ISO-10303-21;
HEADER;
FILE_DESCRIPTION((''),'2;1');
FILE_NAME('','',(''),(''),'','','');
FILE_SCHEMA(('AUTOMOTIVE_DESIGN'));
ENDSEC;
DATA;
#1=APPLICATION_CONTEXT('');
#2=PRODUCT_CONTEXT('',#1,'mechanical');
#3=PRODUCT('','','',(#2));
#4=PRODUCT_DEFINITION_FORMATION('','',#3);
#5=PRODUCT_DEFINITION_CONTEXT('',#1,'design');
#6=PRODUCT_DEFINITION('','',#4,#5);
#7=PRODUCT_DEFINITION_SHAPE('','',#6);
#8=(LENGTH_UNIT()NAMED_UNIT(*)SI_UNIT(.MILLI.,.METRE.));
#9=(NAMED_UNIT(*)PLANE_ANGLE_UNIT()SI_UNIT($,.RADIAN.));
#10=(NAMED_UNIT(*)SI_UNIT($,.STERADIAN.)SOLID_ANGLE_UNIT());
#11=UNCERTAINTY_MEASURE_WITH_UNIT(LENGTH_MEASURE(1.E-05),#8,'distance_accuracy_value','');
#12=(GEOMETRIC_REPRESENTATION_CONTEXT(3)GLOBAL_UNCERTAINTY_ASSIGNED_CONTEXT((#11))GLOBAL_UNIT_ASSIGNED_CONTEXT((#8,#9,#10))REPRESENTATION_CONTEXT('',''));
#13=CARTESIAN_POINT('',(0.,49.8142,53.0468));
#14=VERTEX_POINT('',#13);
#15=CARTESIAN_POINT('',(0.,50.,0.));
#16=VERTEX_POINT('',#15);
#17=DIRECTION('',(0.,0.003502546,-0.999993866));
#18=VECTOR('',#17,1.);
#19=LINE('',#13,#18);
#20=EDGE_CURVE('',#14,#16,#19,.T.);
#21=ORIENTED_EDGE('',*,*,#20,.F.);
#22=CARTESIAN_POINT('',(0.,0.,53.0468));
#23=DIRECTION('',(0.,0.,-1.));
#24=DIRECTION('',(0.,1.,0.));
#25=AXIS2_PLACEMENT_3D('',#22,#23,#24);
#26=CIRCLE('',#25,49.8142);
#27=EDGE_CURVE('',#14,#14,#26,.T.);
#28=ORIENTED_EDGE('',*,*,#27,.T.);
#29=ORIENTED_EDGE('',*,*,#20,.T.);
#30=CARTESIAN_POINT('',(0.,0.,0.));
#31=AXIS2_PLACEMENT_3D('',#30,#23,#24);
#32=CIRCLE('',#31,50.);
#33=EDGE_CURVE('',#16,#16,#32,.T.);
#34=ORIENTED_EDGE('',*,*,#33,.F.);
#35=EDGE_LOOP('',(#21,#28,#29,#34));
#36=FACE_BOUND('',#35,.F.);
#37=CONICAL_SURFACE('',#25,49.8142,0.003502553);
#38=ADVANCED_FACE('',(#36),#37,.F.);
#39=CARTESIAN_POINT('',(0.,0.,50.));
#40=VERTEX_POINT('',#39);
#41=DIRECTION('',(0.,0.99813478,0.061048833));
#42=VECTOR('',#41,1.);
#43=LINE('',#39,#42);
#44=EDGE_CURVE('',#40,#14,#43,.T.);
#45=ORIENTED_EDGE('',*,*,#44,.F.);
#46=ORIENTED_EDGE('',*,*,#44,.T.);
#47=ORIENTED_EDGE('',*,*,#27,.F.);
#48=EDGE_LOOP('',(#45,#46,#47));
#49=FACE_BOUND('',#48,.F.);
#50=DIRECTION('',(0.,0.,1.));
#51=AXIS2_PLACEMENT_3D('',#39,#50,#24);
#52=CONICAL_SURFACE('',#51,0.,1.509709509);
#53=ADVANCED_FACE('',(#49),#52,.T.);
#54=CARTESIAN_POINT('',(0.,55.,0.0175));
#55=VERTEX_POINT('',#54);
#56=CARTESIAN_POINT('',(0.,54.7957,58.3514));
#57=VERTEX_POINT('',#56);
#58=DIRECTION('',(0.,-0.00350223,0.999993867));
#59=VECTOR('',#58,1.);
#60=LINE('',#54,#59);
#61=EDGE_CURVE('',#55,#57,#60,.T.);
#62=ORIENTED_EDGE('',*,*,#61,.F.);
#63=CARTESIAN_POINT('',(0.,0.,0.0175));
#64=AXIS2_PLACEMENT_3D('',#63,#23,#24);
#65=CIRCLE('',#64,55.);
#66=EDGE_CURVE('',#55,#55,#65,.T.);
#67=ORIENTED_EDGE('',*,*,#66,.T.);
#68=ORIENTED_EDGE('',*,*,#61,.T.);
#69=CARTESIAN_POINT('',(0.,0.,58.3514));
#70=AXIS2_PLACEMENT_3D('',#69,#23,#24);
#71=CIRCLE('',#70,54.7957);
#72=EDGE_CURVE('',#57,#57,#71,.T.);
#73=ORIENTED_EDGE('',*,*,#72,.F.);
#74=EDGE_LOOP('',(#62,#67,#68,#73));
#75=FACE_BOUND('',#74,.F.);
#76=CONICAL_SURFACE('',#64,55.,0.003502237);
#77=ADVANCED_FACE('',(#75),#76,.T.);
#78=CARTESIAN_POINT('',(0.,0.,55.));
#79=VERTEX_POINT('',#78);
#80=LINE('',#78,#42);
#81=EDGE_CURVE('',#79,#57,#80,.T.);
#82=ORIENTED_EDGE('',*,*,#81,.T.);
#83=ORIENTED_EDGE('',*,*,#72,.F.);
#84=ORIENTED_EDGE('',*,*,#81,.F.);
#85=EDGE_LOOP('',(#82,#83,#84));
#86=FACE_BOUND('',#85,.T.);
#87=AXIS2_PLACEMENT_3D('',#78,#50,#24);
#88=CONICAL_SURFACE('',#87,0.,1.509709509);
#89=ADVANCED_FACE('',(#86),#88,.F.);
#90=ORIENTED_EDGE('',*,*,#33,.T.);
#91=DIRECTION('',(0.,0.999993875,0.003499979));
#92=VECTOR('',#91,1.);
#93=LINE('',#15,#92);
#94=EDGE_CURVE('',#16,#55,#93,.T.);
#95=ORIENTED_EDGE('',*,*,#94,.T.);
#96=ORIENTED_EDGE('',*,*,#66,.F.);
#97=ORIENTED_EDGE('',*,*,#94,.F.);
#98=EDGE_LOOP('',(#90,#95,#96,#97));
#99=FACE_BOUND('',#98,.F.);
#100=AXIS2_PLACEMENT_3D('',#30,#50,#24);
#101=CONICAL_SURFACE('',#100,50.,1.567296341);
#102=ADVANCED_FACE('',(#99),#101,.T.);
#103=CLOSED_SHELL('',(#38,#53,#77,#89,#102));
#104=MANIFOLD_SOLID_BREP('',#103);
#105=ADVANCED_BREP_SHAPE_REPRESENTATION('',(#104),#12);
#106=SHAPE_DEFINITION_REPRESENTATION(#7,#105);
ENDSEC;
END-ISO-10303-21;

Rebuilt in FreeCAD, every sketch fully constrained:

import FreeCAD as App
import Part
import Sketcher
Q = App.Units.Quantity


def add_polygon(sketch, points):
    """Adds a closed chain of lines whose ends are joined by coincident constraints."""
    first, n = sketch.GeometryCount, len(points)
    for a, b in zip(points, points[1:] + points[:1]):
        sketch.addGeometry(Part.LineSegment(App.Vector(*a, 0), App.Vector(*b, 0)), False)
    for i in range(n):
        sketch.addConstraint(Sketcher.Constraint("Coincident", first + i, 2, first + (i + 1) % n, 1))

doc = App.newDocument("Part")
body = doc.addObject("PartDesign::Body", "Body")

# Sketch on YZ plane
sketch1 = doc.addObject("Sketcher::SketchObject", "Sketch")
body.addObject(sketch1)
sketch1.AttachmentSupport = (doc.YZ_Plane, [""])
sketch1.MapMode = "FlatFace"
add_polygon(sketch1, [(0, 55), (0, 50), (50, 53), (50, 0), (55, 0), (55, 58)])  # lines 0-5
sketch1.addConstraint([
    Sketcher.Constraint("Vertical", 0),
    Sketcher.Constraint("PointOnObject", 0, 2, -2),
    Sketcher.Constraint("PointOnObject", 2, 2, -1),
    Sketcher.Constraint("Perpendicular", 2, 3),
    Sketcher.Constraint("Perpendicular", 3, 4),
    Sketcher.Constraint("Parallel", 1, 5),
    Sketcher.Constraint("DistanceY", 0, 2, 0, 1, 5.0),
    Sketcher.Constraint("Distance", 3, 5.0),
    Sketcher.Constraint("Angle", 1, Q("3.5 deg")),
    Sketcher.Constraint("DistanceY", -1, 1, 0, 2, 50.0),
    Sketcher.Constraint("DistanceX", -1, 1, 2, 2, 50.0),
    Sketcher.Constraint("Angle", 2, Q("-89.7993 deg")),
])
revolution = doc.addObject("PartDesign::Revolution", "Revolution")
body.addObject(revolution)
revolution.Profile = sketch1
revolution.ReferenceAxis = (sketch1, ["V_Axis"])
revolution.Angle = 360

doc.recompute()
